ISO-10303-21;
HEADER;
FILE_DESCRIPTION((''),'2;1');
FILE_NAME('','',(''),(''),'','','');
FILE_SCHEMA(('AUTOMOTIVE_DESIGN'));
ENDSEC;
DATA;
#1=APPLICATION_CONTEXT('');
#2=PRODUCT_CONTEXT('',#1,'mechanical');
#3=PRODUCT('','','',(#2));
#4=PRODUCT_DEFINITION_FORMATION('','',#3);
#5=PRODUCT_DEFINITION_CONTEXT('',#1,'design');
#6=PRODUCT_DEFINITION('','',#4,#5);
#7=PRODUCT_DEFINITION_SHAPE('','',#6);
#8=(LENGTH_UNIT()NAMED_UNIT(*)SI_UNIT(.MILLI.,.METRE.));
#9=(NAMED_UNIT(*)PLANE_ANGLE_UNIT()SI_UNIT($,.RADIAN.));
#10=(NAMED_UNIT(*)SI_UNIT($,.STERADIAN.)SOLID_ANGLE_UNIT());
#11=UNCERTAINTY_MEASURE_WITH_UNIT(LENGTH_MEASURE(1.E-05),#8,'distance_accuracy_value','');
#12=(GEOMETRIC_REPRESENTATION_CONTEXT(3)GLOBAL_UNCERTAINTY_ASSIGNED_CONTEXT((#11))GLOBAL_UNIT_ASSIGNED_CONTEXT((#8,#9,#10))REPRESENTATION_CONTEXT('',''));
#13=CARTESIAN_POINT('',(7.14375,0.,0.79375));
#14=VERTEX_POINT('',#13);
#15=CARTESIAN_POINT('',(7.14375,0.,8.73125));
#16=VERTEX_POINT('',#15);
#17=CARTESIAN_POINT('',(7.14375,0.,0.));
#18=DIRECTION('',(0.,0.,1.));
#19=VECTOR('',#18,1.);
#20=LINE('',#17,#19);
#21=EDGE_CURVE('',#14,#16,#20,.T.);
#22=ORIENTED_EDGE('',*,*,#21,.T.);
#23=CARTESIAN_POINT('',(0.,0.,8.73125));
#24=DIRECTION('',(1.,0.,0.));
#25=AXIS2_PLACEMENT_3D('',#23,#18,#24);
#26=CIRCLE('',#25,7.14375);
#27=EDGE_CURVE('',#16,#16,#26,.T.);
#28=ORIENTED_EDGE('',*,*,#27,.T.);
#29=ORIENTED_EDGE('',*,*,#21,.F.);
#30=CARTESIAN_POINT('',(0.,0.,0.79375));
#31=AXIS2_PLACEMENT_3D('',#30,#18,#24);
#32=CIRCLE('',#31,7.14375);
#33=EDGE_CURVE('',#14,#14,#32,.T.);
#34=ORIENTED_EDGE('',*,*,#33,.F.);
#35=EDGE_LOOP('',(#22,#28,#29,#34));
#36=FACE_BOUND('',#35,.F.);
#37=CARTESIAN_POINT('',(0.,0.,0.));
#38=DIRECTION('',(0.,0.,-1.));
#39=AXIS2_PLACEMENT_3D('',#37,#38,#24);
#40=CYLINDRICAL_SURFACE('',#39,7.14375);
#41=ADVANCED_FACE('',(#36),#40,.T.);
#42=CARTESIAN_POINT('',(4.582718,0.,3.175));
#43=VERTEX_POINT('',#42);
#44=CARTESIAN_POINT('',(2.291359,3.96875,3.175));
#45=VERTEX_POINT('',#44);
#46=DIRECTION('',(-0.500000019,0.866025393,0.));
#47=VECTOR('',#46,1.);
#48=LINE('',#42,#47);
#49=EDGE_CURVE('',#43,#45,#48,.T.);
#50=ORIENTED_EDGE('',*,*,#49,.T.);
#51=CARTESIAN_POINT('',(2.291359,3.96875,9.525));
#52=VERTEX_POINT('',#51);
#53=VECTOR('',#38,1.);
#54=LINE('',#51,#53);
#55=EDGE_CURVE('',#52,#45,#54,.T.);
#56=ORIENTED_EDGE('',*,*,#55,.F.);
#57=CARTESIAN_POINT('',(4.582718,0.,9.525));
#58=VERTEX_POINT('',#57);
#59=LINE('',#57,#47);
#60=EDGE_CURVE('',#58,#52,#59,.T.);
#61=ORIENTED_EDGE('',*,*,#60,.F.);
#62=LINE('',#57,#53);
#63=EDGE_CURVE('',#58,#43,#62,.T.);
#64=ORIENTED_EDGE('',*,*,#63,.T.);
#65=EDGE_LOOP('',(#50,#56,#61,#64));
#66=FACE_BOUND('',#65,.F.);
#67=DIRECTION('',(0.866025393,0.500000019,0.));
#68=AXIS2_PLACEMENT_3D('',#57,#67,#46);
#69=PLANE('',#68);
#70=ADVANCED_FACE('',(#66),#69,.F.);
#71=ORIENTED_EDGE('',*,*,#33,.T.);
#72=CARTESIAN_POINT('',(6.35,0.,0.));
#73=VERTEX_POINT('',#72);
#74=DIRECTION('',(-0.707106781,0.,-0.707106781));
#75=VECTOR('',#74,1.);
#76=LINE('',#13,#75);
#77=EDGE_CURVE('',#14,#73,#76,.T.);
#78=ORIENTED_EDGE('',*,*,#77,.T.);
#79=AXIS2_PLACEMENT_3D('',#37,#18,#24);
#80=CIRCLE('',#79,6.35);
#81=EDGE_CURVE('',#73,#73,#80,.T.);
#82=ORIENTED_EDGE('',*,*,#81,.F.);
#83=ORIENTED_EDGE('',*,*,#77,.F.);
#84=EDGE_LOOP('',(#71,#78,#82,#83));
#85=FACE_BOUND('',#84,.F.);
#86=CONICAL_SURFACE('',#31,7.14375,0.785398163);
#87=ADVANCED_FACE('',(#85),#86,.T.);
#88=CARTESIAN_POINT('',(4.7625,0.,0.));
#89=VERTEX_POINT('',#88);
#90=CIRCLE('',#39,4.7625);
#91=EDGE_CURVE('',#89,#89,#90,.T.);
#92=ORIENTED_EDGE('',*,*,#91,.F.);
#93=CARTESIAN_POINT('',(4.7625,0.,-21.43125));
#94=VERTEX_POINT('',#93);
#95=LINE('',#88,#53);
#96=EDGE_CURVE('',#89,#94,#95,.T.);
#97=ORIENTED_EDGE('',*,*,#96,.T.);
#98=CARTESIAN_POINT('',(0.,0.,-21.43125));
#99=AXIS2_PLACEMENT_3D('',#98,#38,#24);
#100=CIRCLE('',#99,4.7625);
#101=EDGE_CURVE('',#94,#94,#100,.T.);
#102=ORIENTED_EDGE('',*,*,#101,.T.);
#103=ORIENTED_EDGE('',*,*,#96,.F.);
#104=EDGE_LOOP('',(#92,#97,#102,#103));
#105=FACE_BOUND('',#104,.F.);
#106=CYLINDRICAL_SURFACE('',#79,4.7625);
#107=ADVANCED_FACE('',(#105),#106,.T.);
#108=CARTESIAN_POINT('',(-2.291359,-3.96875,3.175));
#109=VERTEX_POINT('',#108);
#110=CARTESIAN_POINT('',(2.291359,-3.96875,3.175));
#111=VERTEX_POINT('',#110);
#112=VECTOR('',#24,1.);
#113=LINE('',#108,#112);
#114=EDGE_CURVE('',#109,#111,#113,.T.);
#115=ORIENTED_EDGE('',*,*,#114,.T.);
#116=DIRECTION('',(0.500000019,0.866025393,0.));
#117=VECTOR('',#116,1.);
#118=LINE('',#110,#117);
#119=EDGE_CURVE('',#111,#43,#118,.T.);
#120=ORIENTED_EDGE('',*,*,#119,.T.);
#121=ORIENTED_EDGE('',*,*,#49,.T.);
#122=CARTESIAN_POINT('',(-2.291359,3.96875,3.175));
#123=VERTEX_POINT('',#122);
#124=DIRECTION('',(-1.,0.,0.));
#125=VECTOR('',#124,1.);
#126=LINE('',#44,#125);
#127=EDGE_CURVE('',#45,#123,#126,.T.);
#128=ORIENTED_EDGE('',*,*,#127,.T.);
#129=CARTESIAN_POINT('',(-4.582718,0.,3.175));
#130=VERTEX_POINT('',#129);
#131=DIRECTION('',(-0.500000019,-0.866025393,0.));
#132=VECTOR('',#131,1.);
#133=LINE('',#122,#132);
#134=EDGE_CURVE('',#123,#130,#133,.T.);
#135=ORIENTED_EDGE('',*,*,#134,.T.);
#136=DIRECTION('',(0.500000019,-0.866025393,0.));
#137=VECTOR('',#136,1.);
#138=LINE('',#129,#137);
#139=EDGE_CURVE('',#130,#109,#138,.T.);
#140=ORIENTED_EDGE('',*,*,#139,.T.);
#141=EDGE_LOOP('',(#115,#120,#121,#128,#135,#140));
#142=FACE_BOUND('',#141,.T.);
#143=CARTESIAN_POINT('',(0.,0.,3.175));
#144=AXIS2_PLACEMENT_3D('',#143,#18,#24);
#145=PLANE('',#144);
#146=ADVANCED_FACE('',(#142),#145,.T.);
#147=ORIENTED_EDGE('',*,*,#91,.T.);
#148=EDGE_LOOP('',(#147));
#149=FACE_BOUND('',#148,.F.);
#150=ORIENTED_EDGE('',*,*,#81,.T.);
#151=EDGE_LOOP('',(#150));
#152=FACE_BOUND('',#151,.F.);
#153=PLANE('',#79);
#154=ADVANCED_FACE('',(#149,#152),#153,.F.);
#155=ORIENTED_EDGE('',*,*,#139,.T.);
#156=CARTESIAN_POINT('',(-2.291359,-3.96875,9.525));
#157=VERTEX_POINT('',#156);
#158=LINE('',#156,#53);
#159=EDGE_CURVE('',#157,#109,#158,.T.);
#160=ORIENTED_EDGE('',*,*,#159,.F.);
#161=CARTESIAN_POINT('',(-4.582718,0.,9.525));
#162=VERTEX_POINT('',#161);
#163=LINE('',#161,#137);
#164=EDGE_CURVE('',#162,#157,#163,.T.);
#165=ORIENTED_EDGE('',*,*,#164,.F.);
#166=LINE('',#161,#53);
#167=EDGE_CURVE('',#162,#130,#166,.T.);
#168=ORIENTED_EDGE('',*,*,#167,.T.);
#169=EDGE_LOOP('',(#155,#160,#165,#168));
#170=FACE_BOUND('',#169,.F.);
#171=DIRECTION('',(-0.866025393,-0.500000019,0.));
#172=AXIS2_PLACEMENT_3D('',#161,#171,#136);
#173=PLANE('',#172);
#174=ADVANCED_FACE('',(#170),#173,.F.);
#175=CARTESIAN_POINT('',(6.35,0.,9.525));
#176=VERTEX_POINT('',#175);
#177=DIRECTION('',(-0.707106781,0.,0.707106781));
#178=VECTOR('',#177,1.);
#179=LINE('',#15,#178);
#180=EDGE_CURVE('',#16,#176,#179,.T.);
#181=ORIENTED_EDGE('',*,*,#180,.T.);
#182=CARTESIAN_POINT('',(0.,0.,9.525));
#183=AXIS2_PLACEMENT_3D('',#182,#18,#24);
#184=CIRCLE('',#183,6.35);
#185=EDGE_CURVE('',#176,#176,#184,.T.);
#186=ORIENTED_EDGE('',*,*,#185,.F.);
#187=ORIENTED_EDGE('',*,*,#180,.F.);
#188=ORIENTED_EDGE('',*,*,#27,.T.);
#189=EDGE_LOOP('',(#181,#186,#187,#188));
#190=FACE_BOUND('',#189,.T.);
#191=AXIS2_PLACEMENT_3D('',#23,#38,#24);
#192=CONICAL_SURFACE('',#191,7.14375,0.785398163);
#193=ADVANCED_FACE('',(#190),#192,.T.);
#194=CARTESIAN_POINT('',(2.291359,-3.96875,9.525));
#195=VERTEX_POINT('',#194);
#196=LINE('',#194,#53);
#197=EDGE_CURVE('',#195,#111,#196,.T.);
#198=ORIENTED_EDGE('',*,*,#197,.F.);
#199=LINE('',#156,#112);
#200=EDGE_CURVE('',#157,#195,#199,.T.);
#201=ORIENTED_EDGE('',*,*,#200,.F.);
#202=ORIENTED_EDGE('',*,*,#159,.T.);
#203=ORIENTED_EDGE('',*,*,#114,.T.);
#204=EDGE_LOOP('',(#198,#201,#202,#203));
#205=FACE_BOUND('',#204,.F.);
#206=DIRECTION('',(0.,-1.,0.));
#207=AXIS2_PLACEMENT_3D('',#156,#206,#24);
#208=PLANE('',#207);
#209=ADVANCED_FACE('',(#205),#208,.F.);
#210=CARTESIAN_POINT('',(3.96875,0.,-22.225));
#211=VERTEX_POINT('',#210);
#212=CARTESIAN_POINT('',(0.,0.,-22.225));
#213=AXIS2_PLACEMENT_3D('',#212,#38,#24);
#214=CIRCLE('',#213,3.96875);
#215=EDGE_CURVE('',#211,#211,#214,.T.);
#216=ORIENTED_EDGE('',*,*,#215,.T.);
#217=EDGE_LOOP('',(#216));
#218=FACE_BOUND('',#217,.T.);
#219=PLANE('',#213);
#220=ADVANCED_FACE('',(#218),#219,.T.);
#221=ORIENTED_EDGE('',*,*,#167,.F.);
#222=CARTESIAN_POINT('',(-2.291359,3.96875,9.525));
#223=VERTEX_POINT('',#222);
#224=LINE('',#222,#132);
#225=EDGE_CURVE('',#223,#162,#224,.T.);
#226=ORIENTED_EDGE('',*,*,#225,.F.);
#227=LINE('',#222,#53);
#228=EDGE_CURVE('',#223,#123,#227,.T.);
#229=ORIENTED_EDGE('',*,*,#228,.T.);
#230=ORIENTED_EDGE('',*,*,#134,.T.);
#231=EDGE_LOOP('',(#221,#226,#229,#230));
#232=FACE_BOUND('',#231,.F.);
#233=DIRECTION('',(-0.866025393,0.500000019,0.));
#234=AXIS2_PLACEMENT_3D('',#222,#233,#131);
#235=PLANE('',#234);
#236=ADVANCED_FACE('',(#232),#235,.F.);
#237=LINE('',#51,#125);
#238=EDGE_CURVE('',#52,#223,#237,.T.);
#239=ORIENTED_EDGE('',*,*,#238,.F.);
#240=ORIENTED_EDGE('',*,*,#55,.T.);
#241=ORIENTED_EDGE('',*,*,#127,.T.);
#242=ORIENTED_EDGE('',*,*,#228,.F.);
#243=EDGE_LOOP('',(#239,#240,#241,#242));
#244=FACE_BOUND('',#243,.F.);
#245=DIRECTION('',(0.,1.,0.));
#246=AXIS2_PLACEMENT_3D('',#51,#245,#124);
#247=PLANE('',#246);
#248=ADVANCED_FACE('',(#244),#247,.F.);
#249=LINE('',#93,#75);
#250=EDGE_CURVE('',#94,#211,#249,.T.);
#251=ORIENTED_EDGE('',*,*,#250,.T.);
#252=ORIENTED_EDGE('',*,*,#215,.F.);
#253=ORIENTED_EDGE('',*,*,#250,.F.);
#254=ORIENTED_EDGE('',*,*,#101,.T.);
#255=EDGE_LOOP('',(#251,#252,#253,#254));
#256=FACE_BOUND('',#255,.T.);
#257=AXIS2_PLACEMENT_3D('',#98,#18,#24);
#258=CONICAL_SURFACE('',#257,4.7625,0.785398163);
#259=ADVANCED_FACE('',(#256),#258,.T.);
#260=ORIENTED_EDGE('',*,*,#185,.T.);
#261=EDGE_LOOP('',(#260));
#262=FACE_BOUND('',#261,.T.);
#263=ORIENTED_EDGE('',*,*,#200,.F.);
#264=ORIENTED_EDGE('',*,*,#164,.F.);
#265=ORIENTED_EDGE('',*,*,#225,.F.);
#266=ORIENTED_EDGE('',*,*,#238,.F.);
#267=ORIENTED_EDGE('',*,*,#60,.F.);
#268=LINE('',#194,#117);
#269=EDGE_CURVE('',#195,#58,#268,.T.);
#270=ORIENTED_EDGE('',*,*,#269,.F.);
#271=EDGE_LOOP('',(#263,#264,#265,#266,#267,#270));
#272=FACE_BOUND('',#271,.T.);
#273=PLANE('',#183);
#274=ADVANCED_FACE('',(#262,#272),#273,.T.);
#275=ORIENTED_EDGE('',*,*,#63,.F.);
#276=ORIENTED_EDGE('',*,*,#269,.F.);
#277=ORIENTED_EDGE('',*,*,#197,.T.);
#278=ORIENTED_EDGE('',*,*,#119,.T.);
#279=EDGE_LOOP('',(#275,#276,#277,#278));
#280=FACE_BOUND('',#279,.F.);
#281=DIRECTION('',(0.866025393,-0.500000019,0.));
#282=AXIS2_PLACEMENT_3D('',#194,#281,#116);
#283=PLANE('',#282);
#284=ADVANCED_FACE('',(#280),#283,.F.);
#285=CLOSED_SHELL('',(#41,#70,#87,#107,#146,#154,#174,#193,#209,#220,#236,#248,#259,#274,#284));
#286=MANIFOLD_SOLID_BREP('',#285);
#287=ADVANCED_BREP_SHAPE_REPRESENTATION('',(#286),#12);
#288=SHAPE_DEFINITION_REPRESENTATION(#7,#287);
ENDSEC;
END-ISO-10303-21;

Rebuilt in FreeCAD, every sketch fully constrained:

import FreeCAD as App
import Part
import Sketcher
from FreeCAD import Vector
Q = App.Units.Quantity


def edges_at(feature, points):
    """Names of the edges that pass closest to the given points."""
    edges = feature.Shape.Edges
    near = lambda p: min(range(len(edges)), key=lambda i: edges[i].distToShape(Part.Vertex(*p))[0])
    return sorted({f"Edge{near(p) + 1}" for p in points})

doc = App.newDocument("Part")
body = doc.addObject("PartDesign::Body", "Body")

sketch1 = body.newObject("Sketcher::SketchObject", "Sketch")
sketch1.AttachmentSupport = (doc.getObject("XY_Plane"), [""])
sketch1.MapMode = "FlatFace"
sketch1.addGeometry(Part.Circle(Vector(0, 0, 0), Vector(0, 0, 1), 7.14375), False)
sketch1.addConstraint(Sketcher.Constraint("Coincident", 0, 3, -1, 1))
sketch1.addConstraint(Sketcher.Constraint("Diameter", 0, Q("0.5625 in")))
pad1 = body.newObject("PartDesign::Pad", "Pad")
pad1.Profile = sketch1
pad1.Length = Q("0.375 in")

sketch2 = body.newObject("Sketcher::SketchObject", "Sketch001")
sketch2.AttachmentSupport = (doc.getObject("XY_Plane"), [""])
sketch2.MapMode = "FlatFace"
sketch2.AttachmentOffset = App.Placement(Vector(0, 0, 0.375 * 25.4), App.Rotation())
sketch2.addGeometry(Part.LineSegment(Vector(2.291359, 3.96875, 0), Vector(-2.291359, 3.96875, 0)), False)
sketch2.addGeometry(Part.LineSegment(Vector(-2.291359, 3.96875, 0), Vector(-4.582718, 0, 0)), False)
sketch2.addGeometry(Part.LineSegment(Vector(-4.582718, 0, 0), Vector(-2.291359, -3.96875, 0)), False)
sketch2.addGeometry(Part.LineSegment(Vector(-2.291359, -3.96875, 0), Vector(2.291359, -3.96875, 0)), False)
sketch2.addGeometry(Part.LineSegment(Vector(2.291359, -3.96875, 0), Vector(4.582718, 0, 0)), False)
sketch2.addGeometry(Part.LineSegment(Vector(4.582718, 0, 0), Vector(2.291359, 3.96875, 0)), False)
sketch2.addConstraint(Sketcher.Constraint("Coincident", 0, 2, 1, 1))
sketch2.addConstraint(Sketcher.Constraint("Coincident", 1, 2, 2, 1))
sketch2.addConstraint(Sketcher.Constraint("Coincident", 2, 2, 3, 1))
sketch2.addConstraint(Sketcher.Constraint("Coincident", 3, 2, 4, 1))
sketch2.addConstraint(Sketcher.Constraint("Coincident", 4, 2, 5, 1))
sketch2.addConstraint(Sketcher.Constraint("Coincident", 5, 2, 0, 1))
sketch2.addConstraint(Sketcher.Constraint("Horizontal", 0))
sketch2.addConstraint(Sketcher.Constraint("Horizontal", 3))
sketch2.addConstraint(Sketcher.Constraint("Symmetric", 0, 2, 3, 2, -1, 1))
sketch2.addConstraint(Sketcher.Constraint("Symmetric", 1, 2, 4, 2, -1, 1))
sketch2.addConstraint(Sketcher.Constraint("PointOnObject", 1, 2, -1))
sketch2.addConstraint(Sketcher.Constraint("Parallel", 2, 5))
sketch2.addConstraint(Sketcher.Constraint("Vertical", 0, 2, 2, 2))
sketch2.addConstraint(Sketcher.Constraint("Angle", 1, Q("-120.000001 deg")))
sketch2.addConstraint(Sketcher.Constraint("DistanceY", -1, 1, 0, 2, Q("0.15625 in")))
sketch2.addConstraint(Sketcher.Constraint("DistanceX", 0, 2, 0, 1, Q("4.582718 mm")))
pocket1 = body.newObject("PartDesign::Pocket", "Pocket")
pocket1.Profile = sketch2
pocket1.Length = Q("0.25 in")

sketch3 = body.newObject("Sketcher::SketchObject", "Sketch002")
sketch3.AttachmentSupport = (doc.getObject("XY_Plane"), [""])
sketch3.MapMode = "FlatFace"
sketch3.addGeometry(Part.Circle(Vector(0, 0, 0), Vector(0, 0, 1), 4.7625), False)
sketch3.addConstraint(Sketcher.Constraint("Coincident", 0, 3, -1, 1))
sketch3.addConstraint(Sketcher.Constraint("Diameter", 0, Q("0.375 in")))
pad2 = body.newObject("PartDesign::Pad", "Pad001")
pad2.Profile = sketch3
pad2.Length = Q("0.875 in")
pad2.Reversed = True
doc.recompute()

chamfer = body.newObject("PartDesign::Chamfer", "Chamfer")
chamfer.Base = (pad2, edges_at(pad2, [(-7.144, 0, 9.525)]))
chamfer.Size = Q("0.03125 in")
doc.recompute()

chamfer2 = body.newObject("PartDesign::Chamfer", "Chamfer001")
chamfer2.Base = (chamfer, edges_at(chamfer, [(-7.144, 0, 0)]))
chamfer2.Size = Q("0.03125 in")
doc.recompute()

chamfer3 = body.newObject("PartDesign::Chamfer", "Chamfer002")
chamfer3.Base = (chamfer2, edges_at(chamfer2, [(-4.763, 0, -22.225)]))
chamfer3.Size = Q("0.03125 in")

doc.recompute()
